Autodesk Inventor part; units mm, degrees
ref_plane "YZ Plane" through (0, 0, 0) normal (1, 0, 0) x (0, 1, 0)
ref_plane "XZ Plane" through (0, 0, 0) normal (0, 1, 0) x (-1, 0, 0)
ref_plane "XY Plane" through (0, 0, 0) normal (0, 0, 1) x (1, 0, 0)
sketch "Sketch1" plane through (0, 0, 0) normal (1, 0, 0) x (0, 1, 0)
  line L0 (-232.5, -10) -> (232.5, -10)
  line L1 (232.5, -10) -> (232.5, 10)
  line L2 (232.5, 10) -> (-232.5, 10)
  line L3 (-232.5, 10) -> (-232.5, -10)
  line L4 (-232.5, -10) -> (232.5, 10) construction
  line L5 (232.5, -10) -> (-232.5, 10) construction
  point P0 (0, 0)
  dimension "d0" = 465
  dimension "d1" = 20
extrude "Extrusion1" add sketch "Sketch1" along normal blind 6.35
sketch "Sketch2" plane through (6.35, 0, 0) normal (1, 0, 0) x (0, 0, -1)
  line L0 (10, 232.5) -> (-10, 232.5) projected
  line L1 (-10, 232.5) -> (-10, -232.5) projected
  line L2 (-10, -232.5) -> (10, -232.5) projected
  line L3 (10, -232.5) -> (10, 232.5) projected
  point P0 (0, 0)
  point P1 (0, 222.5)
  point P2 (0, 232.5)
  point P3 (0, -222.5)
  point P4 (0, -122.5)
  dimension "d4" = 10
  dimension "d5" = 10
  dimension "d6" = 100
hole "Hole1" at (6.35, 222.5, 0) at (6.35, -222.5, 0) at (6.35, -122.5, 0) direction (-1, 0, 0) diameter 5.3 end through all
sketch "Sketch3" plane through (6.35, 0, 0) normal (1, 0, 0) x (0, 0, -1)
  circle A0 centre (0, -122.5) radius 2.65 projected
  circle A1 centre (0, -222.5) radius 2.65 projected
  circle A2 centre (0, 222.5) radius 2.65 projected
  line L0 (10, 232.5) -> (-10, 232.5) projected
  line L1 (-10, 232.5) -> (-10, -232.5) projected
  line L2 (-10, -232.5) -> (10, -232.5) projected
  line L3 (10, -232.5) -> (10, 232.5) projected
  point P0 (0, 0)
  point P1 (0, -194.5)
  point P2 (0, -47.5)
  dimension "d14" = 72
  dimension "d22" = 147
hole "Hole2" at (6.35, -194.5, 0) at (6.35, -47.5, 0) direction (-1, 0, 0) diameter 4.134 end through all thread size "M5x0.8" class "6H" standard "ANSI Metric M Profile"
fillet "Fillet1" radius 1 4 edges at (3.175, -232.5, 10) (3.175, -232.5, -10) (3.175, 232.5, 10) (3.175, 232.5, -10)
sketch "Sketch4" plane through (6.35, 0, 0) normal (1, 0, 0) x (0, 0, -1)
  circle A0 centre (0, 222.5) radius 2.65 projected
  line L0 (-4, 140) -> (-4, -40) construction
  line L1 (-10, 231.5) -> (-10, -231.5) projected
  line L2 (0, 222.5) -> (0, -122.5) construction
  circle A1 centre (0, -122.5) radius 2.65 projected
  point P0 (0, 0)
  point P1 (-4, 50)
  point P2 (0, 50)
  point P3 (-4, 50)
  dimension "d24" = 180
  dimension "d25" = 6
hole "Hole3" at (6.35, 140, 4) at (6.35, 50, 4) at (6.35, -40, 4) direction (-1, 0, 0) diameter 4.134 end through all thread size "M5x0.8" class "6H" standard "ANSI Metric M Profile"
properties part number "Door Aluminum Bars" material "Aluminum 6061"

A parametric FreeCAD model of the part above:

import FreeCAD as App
import Part
import Sketcher

V = App.Vector


def edges_at(feature, points):
    """Names of the edges that pass closest to the given points."""
    edges = feature.Shape.Edges
    near = lambda p: min(range(len(edges)), key=lambda i: edges[i].distToShape(Part.Vertex(*p))[0])
    return sorted({f"Edge{near(p) + 1}" for p in points})


def add_polygon(sketch, points):
    """Adds a closed chain of lines whose ends are joined by coincident constraints."""
    first, n = sketch.GeometryCount, len(points)
    for a, b in zip(points, points[1:] + points[:1]):
        sketch.addGeometry(Part.LineSegment(App.Vector(*a, 0), App.Vector(*b, 0)), False)
    for i in range(n):
        sketch.addConstraint(Sketcher.Constraint("Coincident", first + i, 2, first + (i + 1) % n, 1))

doc = App.newDocument("Part")
body = doc.addObject("PartDesign::Body", "Body")

# Sketch on YZ plane
sketch1 = body.newObject("Sketcher::SketchObject", "Sketch")
sketch1.AttachmentSupport = (doc.getObject("YZ_Plane"), [""])
sketch1.MapMode = "FlatFace"
add_polygon(sketch1, [(-232, 10), (-232, -10), (232, -10), (232, 10)])  # lines 0-3
sketch1.addConstraint([
    Sketcher.Constraint("Vertical", 0),
    Sketcher.Constraint("Horizontal", 1),
    Sketcher.Constraint("Vertical", 2),
    Sketcher.Constraint("Horizontal", 3),
    Sketcher.Constraint("Symmetric", 0, 2, 2, 2, -1, 1),
    Sketcher.Constraint("DistanceX", 1, 1, 1, 2, 465.0),
    Sketcher.Constraint("DistanceY", 0, 2, 0, 1, 20.0),
])
pad1 = body.newObject("PartDesign::Pad", "Pad")
pad1.Profile = sketch1
pad1.Length = 6.35

# Sketch on YZ plane
sketch2 = body.newObject("Sketcher::SketchObject", "Sketch001")
sketch2.AttachmentSupport = (doc.getObject("YZ_Plane"), [""])
sketch2.MapMode = "FlatFace"
sketch2.AttachmentOffset = App.Placement(V(0, 0, 6.35), App.Rotation())
sketch2.addGeometry([
    Part.Circle(V(222.5, 0, 0), V(0, 0, 1), 2.6),
    Part.Circle(V(-222.5, 0, 0), V(0, 0, 1), 2.6),
    Part.Circle(V(-122.5, 0, 0), V(0, 0, 1), 2.6),
], False)
sketch2.addConstraint([
    Sketcher.Constraint("Equal", 0, 1),
    Sketcher.Constraint("Equal", 1, 2),
    Sketcher.Constraint("Symmetric", 0, 3, 1, 3, -1, 1),
    Sketcher.Constraint("PointOnObject", 0, 3, -1),
    Sketcher.Constraint("PointOnObject", 2, 3, -1),
    Sketcher.Constraint("Diameter", 0, 5.3),
    Sketcher.Constraint("DistanceX", 1, 3, 0, 3, 445.0),
    Sketcher.Constraint("DistanceX", 1, 3, 2, 3, 100.0),
])
doc.recompute()
hole = body.newObject("PartDesign::Hole", "Hole")
hole.Profile = sketch2
hole.ThreadType = "None"
hole.Diameter = 5.3
hole.DepthType = "ThroughAll"

# Sketch on YZ plane
sketch3 = body.newObject("Sketcher::SketchObject", "Sketch002")
sketch3.AttachmentSupport = (doc.getObject("YZ_Plane"), [""])
sketch3.MapMode = "FlatFace"
sketch3.AttachmentOffset = App.Placement(V(0, 0, 6.35), App.Rotation())
sketch3.addGeometry([
    Part.Circle(V(-194.5, 0, 0), V(0, 0, 1), 2.1),
    Part.Circle(V(-47.5, 0, 0), V(0, 0, 1), 2.1),
], False)
sketch3.addConstraint([
    Sketcher.Constraint("Equal", 0, 1),
    Sketcher.Constraint("PointOnObject", 0, 3, -1),
    Sketcher.Constraint("PointOnObject", 1, 3, -1),
    Sketcher.Constraint("Diameter", 0, 4.134),
    Sketcher.Constraint("DistanceX", 0, 3, 1, 3, 147.0),
    Sketcher.Constraint("DistanceX", 0, 3, -1, 1, 194.5),
])
doc.recompute()
hole2 = body.newObject("PartDesign::Hole", "Hole001")
hole2.Profile = sketch3
hole2.ThreadType = "None"
hole2.Diameter = 4.134
hole2.DepthType = "ThroughAll"
doc.recompute()

fillet = body.newObject("PartDesign::Fillet", "Fillet")
fillet.Base = (hole2, edges_at(hole2, [
    (3.175, -232.5, 10),
    (3.175, -232.5, -10),
    (3.175, 232.5, 10),
    (3.175, 232.5, -10),
]))
fillet.Radius = 1

# Sketch on YZ plane
sketch4 = body.newObject("Sketcher::SketchObject", "Sketch003")
sketch4.AttachmentSupport = (doc.getObject("YZ_Plane"), [""])
sketch4.MapMode = "FlatFace"
sketch4.AttachmentOffset = App.Placement(V(0, 0, 6.35), App.Rotation())
sketch4.addGeometry([
    Part.Circle(V(140, 4, 0), V(0, 0, 1), 2.1),
    Part.Circle(V(50, 4, 0), V(0, 0, 1), 2.1),
    Part.Circle(V(-40, 4, 0), V(0, 0, 1), 2.1),
], False)
sketch4.addConstraint([
    Sketcher.Constraint("Equal", 0, 1),
    Sketcher.Constraint("Equal", 1, 2),
    Sketcher.Constraint("Horizontal", 0, 3, 1, 3),
    Sketcher.Constraint("Horizontal", 1, 3, 2, 3),
    Sketcher.Constraint("Diameter", 0, 4.134),
    Sketcher.Constraint("DistanceX", -1, 1, 0, 3, 140.0),
    Sketcher.Constraint("DistanceY", -1, 1, 0, 3, 4.0),
    Sketcher.Constraint("DistanceX", -1, 1, 1, 3, 50.0),
    Sketcher.Constraint("DistanceX", 2, 3, -1, 1, 40.0),
])
doc.recompute()
hole3 = body.newObject("PartDesign::Hole", "Hole002")
hole3.Profile = sketch4
hole3.ThreadType = "None"
hole3.Diameter = 4.134
hole3.DepthType = "ThroughAll"

doc.recompute()
